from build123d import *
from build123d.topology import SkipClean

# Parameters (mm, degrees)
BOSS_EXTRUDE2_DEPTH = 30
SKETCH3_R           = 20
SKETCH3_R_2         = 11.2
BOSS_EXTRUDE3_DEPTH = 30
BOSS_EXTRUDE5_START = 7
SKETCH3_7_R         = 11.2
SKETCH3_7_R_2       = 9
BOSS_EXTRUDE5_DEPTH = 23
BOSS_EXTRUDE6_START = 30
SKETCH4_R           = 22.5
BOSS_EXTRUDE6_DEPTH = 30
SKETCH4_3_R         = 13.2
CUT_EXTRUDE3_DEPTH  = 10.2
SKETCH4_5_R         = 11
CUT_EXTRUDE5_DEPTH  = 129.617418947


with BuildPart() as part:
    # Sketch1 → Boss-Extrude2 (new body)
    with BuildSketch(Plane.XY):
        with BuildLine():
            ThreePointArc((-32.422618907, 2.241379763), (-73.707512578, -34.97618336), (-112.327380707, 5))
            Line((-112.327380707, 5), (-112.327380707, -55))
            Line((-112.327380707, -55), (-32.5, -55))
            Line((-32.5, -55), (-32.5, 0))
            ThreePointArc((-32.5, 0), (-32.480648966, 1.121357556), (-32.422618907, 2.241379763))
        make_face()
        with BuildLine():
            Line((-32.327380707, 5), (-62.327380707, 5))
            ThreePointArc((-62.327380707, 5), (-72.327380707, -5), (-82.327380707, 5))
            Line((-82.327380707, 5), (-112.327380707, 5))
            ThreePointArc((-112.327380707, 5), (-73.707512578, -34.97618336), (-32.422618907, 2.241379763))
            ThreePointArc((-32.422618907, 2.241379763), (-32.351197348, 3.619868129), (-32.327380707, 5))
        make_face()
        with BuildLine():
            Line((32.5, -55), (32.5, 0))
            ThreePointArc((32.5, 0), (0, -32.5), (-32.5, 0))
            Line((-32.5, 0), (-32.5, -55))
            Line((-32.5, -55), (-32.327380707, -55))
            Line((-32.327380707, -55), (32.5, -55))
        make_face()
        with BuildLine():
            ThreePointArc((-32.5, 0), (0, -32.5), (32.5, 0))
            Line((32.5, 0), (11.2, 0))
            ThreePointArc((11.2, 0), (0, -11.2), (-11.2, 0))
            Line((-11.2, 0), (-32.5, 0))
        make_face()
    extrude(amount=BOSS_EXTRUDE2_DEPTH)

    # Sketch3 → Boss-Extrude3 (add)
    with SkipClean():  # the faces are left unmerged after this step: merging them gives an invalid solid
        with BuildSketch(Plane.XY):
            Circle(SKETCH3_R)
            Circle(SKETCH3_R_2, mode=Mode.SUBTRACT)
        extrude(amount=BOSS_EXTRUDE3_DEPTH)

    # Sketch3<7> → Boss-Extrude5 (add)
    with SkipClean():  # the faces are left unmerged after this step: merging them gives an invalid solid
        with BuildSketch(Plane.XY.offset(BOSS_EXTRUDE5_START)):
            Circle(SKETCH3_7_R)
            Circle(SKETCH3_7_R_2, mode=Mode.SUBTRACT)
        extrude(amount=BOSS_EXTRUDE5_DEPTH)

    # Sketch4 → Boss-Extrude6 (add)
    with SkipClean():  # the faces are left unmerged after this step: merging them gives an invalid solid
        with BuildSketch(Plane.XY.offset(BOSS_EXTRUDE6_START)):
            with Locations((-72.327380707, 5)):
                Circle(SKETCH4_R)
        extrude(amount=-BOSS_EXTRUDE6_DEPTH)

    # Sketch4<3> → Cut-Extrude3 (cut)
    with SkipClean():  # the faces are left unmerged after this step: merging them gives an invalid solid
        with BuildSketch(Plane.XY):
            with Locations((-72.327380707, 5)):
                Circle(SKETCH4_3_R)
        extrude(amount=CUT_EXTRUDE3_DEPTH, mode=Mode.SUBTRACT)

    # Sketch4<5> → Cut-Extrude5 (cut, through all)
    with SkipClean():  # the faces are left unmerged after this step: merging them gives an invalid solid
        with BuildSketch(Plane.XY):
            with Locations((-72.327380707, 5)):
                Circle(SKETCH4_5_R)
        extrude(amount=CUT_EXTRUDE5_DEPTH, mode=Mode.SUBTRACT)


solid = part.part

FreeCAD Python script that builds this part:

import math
import FreeCAD as App
import Part
import Sketcher
from FreeCAD import Vector
Q = App.Units.Quantity

doc = App.newDocument("Part")
params = doc.addObject("Spreadsheet::Sheet", "Params")
for row, (alias, value) in enumerate([
    ("sketch1_radius", "40.000001 mm"),
    ("sketch1_radius2", "10 mm"),
    ("sketch1_radius3", "11.2 mm"),
    ("sketch1_radius4", "32.5 mm"),
    ("sketch1_height", "60 mm"),
    ("pad1_length", "30 mm"),
    ("sketch2_diameter", "40 mm"),
    ("sketch2_diameter2", "22.4 mm"),
    ("pad2_length", "30 mm"),
    ("sketch3_diameter", "18 mm"),
    ("sketch3_diameter2", "22.4 mm"),
    ("pad3_length", "23 mm"),
    ("sketch4_diameter", "45 mm"),
    ("pad4_length", "30 mm"),
    ("sketch5_diameter", "26.4 mm"),
    ("pocket1_length", "10.2 mm"),
    ("sketch6_diameter", "22 mm"),
], start=1):
    params.set(f"A{row}", alias)
    params.set(f"B{row}", "=" + value)
    params.setAlias(f"B{row}", alias)

body = doc.addObject("PartDesign::Body", "Body")

# Sketch on XY plane
sketch1 = body.newObject("Sketcher::SketchObject", "Sketch")
sketch1.AttachmentSupport = (doc.getObject("XY_Plane"), [""])
sketch1.MapMode = "FlatFace"
sketch1.addGeometry([
    Part.LineSegment(Vector(-112.3, 5, 0), Vector(-112.3, -55, 0)),  # 0
    Part.LineSegment(Vector(-112.3, -55, 0), Vector(32.5, -55, 0)),  # 1
    Part.LineSegment(Vector(32.5, -55, 0), Vector(32.5, 0, 0)),  # 2
    Part.LineSegment(Vector(32.5, 0, 0), Vector(11.2, 0, 0)),  # 3
    Part.ArcOfCircle(Part.Circle(Vector(0, 0, 0), Vector(0, 0, 1), 11.2), math.radians(180), math.radians(360)),  # 4
    Part.LineSegment(Vector(-11.2, 0, 0), Vector(-32.5, 0, 0)),  # 5
    Part.ArcOfCircle(Part.Circle(Vector(0, 0, 0), Vector(0, 0, 1), 32.5), math.radians(176.05), math.radians(180)),  # 6
    Part.ArcOfCircle(Part.Circle(Vector(-72.3, 5, 0), Vector(0, 0, 1), 40), math.radians(-3.95), math.radians(0)),  # 7
    Part.LineSegment(Vector(-32.3, 5, 0), Vector(-62.3, 5, 0)),  # 8
    Part.ArcOfCircle(Part.Circle(Vector(-72.3, 5, 0), Vector(0, 0, 1), 10), math.radians(180), math.radians(360)),  # 9
    Part.LineSegment(Vector(-82.3, 5, 0), Vector(-112.3, 5, 0)),  # 10
], False)
sketch1.addConstraint([
    Sketcher.Constraint("Coincident", 0, 2, 1, 1),
    Sketcher.Constraint("Coincident", 1, 2, 2, 1),
    Sketcher.Constraint("Coincident", 2, 2, 3, 1),
    Sketcher.Constraint("Coincident", 3, 2, 4, 2),
    Sketcher.Constraint("Coincident", 4, 1, 5, 1),
    Sketcher.Constraint("Coincident", 5, 2, 6, 2),
    Sketcher.Constraint("Tangent", 6, 1, 7, 1),
    Sketcher.Constraint("Coincident", 7, 2, 8, 1),
    Sketcher.Constraint("Coincident", 8, 2, 9, 2),
    Sketcher.Constraint("Coincident", 9, 1, 10, 1),
    Sketcher.Constraint("Coincident", 10, 2, 0, 1),
    Sketcher.Constraint("Vertical", 0),
    Sketcher.Constraint("Horizontal", 1),
    Sketcher.Constraint("Vertical", 2),
    Sketcher.Constraint("Horizontal", 3),
    Sketcher.Constraint("Horizontal", 5),
    Sketcher.Constraint("Horizontal", 8),
    Sketcher.Constraint("Horizontal", 10),
    Sketcher.Constraint("Coincident", 4, 3, -1, 1),
    Sketcher.Constraint("Coincident", 6, 3, -1, 1),
    Sketcher.Constraint("Coincident", 9, 3, 7, 3),
    Sketcher.Constraint("Symmetric", 2, 2, 5, 2, -1, 1),
    Sketcher.Constraint("PointOnObject", 2, 2, -1),
    Sketcher.Constraint("Horizontal", 9, 3, 7, 2),
    Sketcher.Constraint("Horizontal", 8, 2, 9, 1),
    Sketcher.Constraint("Equal", 8, 10),
    Sketcher.Constraint("Radius", 7, Q("40.000001 mm")),
    Sketcher.Constraint("Radius", 9, Q("10 mm")),
    Sketcher.Constraint("Radius", 4, Q("11.2 mm")),
    Sketcher.Constraint("Radius", 6, Q("32.5 mm")),
    Sketcher.Constraint("DistanceY", 0, 2, 0, 1, Q("60 mm")),
    Sketcher.Constraint("DistanceY", 2, 1, 2, 2, Q("55 mm")),
])
sketch1.setExpression("Constraints[26]", "Params.sketch1_radius")
sketch1.setExpression("Constraints[27]", "Params.sketch1_radius2")
sketch1.setExpression("Constraints[28]", "Params.sketch1_radius3")
sketch1.setExpression("Constraints[29]", "Params.sketch1_radius4")
sketch1.setExpression("Constraints[30]", "Params.sketch1_height")
pad1 = body.newObject("PartDesign::Pad", "Pad")
pad1.Profile = sketch1
pad1.setExpression("Length", "Params.pad1_length")

# Sketch on XY plane
sketch2 = body.newObject("Sketcher::SketchObject", "Sketch001")
sketch2.AttachmentSupport = (doc.getObject("XY_Plane"), [""])
sketch2.MapMode = "FlatFace"
sketch2.addGeometry([
    Part.Circle(Vector(0, 0, 0), Vector(0, 0, 1), 20),
    Part.Circle(Vector(0, 0, 0), Vector(0, 0, 1), 11),
], False)
sketch2.addConstraint([
    Sketcher.Constraint("Coincident", 0, 3, -1, 1),
    Sketcher.Constraint("Coincident", 1, 3, -1, 1),
    Sketcher.Constraint("Diameter", 0, Q("40 mm")),
    Sketcher.Constraint("Diameter", 1, Q("22.4 mm")),
])
sketch2.setExpression("Constraints[2]", "Params.sketch2_diameter")
sketch2.setExpression("Constraints[3]", "Params.sketch2_diameter2")
pad2 = body.newObject("PartDesign::Pad", "Pad001")
pad2.Profile = sketch2
pad2.setExpression("Length", "Params.pad2_length")

# Sketch on XY plane
sketch3 = body.newObject("Sketcher::SketchObject", "Sketch002")
sketch3.AttachmentSupport = (doc.getObject("XY_Plane"), [""])
sketch3.MapMode = "FlatFace"
sketch3.AttachmentOffset = App.Placement(Vector(0, 0, 7), App.Rotation())
sketch3.addGeometry([
    Part.Circle(Vector(0, 0, 0), Vector(0, 0, 1), 11),
    Part.Circle(Vector(0, 0, 0), Vector(0, 0, 1), 9),
], False)
sketch3.addConstraint([
    Sketcher.Constraint("Coincident", 0, 3, -1, 1),
    Sketcher.Constraint("Coincident", 1, 3, -1, 1),
    Sketcher.Constraint("Diameter", 1, Q("18 mm")),
    Sketcher.Constraint("Diameter", 0, Q("22.4 mm")),
])
sketch3.setExpression("Constraints[2]", "Params.sketch3_diameter")
sketch3.setExpression("Constraints[3]", "Params.sketch3_diameter2")
pad3 = body.newObject("PartDesign::Pad", "Pad002")
pad3.Profile = sketch3
pad3.setExpression("Length", "Params.pad3_length")

# Sketch on XY plane
sketch4 = body.newObject("Sketcher::SketchObject", "Sketch003")
sketch4.AttachmentSupport = (doc.getObject("XY_Plane"), [""])
sketch4.MapMode = "FlatFace"
sketch4.AttachmentOffset = App.Placement(Vector(0, 0, 30), App.Rotation())
sketch4.addGeometry(Part.Circle(Vector(-72, 5, 0), Vector(0, 0, 1), 22), False)
sketch4.addConstraint([
    Sketcher.Constraint("Diameter", 0, Q("45 mm")),
    Sketcher.Constraint("DistanceY", -1, 1, 0, 3, Q("5 mm")),
    Sketcher.Constraint("DistanceX", 0, 3, -1, 1, Q("72.327381 mm")),
])
sketch4.setExpression("Constraints[0]", "Params.sketch4_diameter")
pad4 = body.newObject("PartDesign::Pad", "Pad003")
pad4.Profile = sketch4
pad4.setExpression("Length", "Params.pad4_length")
pad4.Reversed = True

# Sketch on XY plane
sketch5 = body.newObject("Sketcher::SketchObject", "Sketch004")
sketch5.AttachmentSupport = (doc.getObject("XY_Plane"), [""])
sketch5.MapMode = "FlatFace"
sketch5.addGeometry(Part.Circle(Vector(-72, 5, 0), Vector(0, 0, 1), 13), False)
sketch5.addConstraint([
    Sketcher.Constraint("Diameter", 0, Q("26.4 mm")),
    Sketcher.Constraint("DistanceY", -1, 1, 0, 3, Q("5 mm")),
    Sketcher.Constraint("DistanceX", 0, 3, -1, 1, Q("72.327381 mm")),
])
sketch5.setExpression("Constraints[0]", "Params.sketch5_diameter")
pocket1 = body.newObject("PartDesign::Pocket", "Pocket")
pocket1.Profile = sketch5
pocket1.setExpression("Length", "Params.pocket1_length")
pocket1.Reversed = True

# Sketch on XY plane
sketch6 = body.newObject("Sketcher::SketchObject", "Sketch005")
sketch6.AttachmentSupport = (doc.getObject("XY_Plane"), [""])
sketch6.MapMode = "FlatFace"
sketch6.addGeometry(Part.Circle(Vector(-72, 5, 0), Vector(0, 0, 1), 11), False)
sketch6.addConstraint([
    Sketcher.Constraint("Diameter", 0, Q("22 mm")),
    Sketcher.Constraint("DistanceY", -1, 1, 0, 3, Q("5 mm")),
    Sketcher.Constraint("DistanceX", 0, 3, -1, 1, Q("72.327381 mm")),
])
sketch6.setExpression("Constraints[0]", "Params.sketch6_diameter")
pocket2 = body.newObject("PartDesign::Pocket", "Pocket001")
pocket2.Profile = sketch6
pocket2.Type = "ThroughAll"
pocket2.Reversed = True

doc.recompute()
